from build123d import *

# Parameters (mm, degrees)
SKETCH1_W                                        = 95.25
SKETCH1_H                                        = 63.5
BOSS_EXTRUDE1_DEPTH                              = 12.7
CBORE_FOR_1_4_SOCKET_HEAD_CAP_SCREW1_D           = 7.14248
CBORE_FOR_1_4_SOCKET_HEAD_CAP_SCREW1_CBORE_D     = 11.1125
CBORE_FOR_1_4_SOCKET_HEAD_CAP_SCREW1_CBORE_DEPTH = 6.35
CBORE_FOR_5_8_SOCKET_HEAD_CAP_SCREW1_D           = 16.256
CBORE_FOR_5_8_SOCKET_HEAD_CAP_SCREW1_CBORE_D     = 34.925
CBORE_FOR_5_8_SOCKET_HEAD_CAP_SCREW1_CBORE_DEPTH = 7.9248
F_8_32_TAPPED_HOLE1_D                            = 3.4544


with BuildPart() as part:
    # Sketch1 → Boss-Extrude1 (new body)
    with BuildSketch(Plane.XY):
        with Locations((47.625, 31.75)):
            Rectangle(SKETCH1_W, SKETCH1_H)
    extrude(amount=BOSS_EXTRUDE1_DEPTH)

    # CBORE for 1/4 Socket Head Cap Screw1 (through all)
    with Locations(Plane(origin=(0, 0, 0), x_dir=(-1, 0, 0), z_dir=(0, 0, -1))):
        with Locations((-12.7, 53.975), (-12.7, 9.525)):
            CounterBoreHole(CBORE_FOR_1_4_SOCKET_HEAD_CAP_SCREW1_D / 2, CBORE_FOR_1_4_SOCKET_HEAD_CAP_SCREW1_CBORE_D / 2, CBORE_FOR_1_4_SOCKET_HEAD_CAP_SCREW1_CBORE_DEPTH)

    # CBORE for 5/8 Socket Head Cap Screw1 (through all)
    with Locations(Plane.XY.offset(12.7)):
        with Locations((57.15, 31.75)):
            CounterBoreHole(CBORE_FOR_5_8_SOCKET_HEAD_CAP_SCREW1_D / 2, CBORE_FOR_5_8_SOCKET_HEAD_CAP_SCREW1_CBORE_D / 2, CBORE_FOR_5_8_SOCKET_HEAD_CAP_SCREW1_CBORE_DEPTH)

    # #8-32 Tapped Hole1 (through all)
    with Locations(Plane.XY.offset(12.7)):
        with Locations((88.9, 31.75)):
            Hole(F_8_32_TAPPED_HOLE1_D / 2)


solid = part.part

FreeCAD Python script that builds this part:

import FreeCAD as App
import Part
import Sketcher
Q = App.Units.Quantity

doc = App.newDocument("Part")
body = doc.addObject("PartDesign::Body", "Body")

# Sketch on XY plane
sketch1 = doc.addObject("Sketcher::SketchObject", "Sketch")
body.addObject(sketch1)
sketch1.AttachmentSupport = (doc.XY_Plane, [""])
sketch1.MapMode = "FlatFace"
sketch1.addGeometry([
    Part.LineSegment(App.Vector(0, 63.5, 0), App.Vector(0, 0, 0)),
    Part.LineSegment(App.Vector(0, 0, 0), App.Vector(95.25, 0, 0)),
    Part.LineSegment(App.Vector(95.25, 0, 0), App.Vector(95.25, 63.5, 0)),
    Part.LineSegment(App.Vector(95.25, 63.5, 0), App.Vector(0, 63.5, 0)),
], False)
sketch1.addConstraint([
    Sketcher.Constraint("Coincident", 0, 2, 1, 1),
    Sketcher.Constraint("Coincident", 1, 2, 2, 1),
    Sketcher.Constraint("Coincident", 2, 2, 3, 1),
    Sketcher.Constraint("Coincident", 3, 2, 0, 1),
    Sketcher.Constraint("Vertical", 0),
    Sketcher.Constraint("Horizontal", 1),
    Sketcher.Constraint("Vertical", 2),
    Sketcher.Constraint("Horizontal", 3),
    Sketcher.Constraint("Coincident", 0, 2, -1, 1),
    Sketcher.Constraint("DistanceY", 0, 2, 0, 1, Q("2.5 in")),
    Sketcher.Constraint("DistanceX", 1, 1, 1, 2, Q("3.75 in")),
])
pad1 = doc.addObject("PartDesign::Pad", "Pad")
body.addObject(pad1)
pad1.Profile = sketch1
pad1.Length = Q("0.5 in")

# Sketch on XY plane
sketch2 = doc.addObject("Sketcher::SketchObject", "Sketch001")
body.addObject(sketch2)
sketch2.AttachmentSupport = (doc.XY_Plane, [""])
sketch2.MapMode = "FlatFace"
sketch2.addGeometry([
    Part.Circle(App.Vector(12.7, 53.975, 0), App.Vector(0, 0, 1), 3.57124),
    Part.Circle(App.Vector(12.7, 9.525, 0), App.Vector(0, 0, 1), 3.57124),
], False)
sketch2.addConstraint([
    Sketcher.Constraint("Equal", 0, 1),
    Sketcher.Constraint("Vertical", 0, 3, 1, 3),
    Sketcher.Constraint("Diameter", 0, Q("0.2812 in")),
    Sketcher.Constraint("DistanceX", -1, 1, 0, 3, Q("0.5 in")),
    Sketcher.Constraint("DistanceY", 1, 3, 0, 3, Q("1.75 in")),
    Sketcher.Constraint("DistanceY", -1, 1, 0, 3, Q("2.125 in")),
])
doc.recompute()
hole = doc.addObject("PartDesign::Hole", "Hole")
body.addObject(hole)
hole.Profile = sketch2
hole.ThreadType = "None"
hole.Diameter = Q("0.2812 in")
hole.DepthType = "ThroughAll"
hole.HoleCutType = "Counterbore"
hole.HoleCutDiameter = Q("0.4375 in")
hole.HoleCutDepth = Q("0.25 in")
hole.Reversed = True

# Sketch on XY plane
sketch3 = doc.addObject("Sketcher::SketchObject", "Sketch002")
body.addObject(sketch3)
sketch3.AttachmentSupport = (doc.XY_Plane, [""])
sketch3.MapMode = "FlatFace"
sketch3.AttachmentOffset = App.Placement(App.Vector(0, 0, 0.5 * 25.4), App.Rotation())
sketch3.addGeometry(Part.Circle(App.Vector(57.15, 31.75, 0), App.Vector(0, 0, 1), 8.128), False)
sketch3.addConstraint([
    Sketcher.Constraint("Diameter", 0, Q("0.64 in")),
    Sketcher.Constraint("DistanceX", -1, 1, 0, 3, Q("2.25 in")),
    Sketcher.Constraint("DistanceY", -1, 1, 0, 3, Q("1.25 in")),
])
doc.recompute()
hole2 = doc.addObject("PartDesign::Hole", "Hole001")
body.addObject(hole2)
hole2.Profile = sketch3
hole2.ThreadType = "None"
hole2.Diameter = Q("0.64 in")
hole2.DepthType = "ThroughAll"
hole2.HoleCutType = "Counterbore"
hole2.HoleCutDiameter = Q("1.375 in")
hole2.HoleCutDepth = Q("0.312 in")

# Sketch on XY plane
sketch4 = doc.addObject("Sketcher::SketchObject", "Sketch003")
body.addObject(sketch4)
sketch4.AttachmentSupport = (doc.XY_Plane, [""])
sketch4.MapMode = "FlatFace"
sketch4.AttachmentOffset = App.Placement(App.Vector(0, 0, 0.5 * 25.4), App.Rotation())
sketch4.addGeometry(Part.Circle(App.Vector(88.9, 31.75, 0), App.Vector(0, 0, 1), 1.7272), False)
sketch4.addConstraint([
    Sketcher.Constraint("Diameter", 0, Q("0.136 in")),
    Sketcher.Constraint("DistanceX", -1, 1, 0, 3, Q("3.5 in")),
    Sketcher.Constraint("DistanceY", -1, 1, 0, 3, Q("1.25 in")),
])
doc.recompute()
hole3 = doc.addObject("PartDesign::Hole", "Hole002")
body.addObject(hole3)
hole3.Profile = sketch4
hole3.ThreadType = "None"
hole3.Diameter = Q("0.136 in")
hole3.DepthType = "ThroughAll"

doc.recompute()
